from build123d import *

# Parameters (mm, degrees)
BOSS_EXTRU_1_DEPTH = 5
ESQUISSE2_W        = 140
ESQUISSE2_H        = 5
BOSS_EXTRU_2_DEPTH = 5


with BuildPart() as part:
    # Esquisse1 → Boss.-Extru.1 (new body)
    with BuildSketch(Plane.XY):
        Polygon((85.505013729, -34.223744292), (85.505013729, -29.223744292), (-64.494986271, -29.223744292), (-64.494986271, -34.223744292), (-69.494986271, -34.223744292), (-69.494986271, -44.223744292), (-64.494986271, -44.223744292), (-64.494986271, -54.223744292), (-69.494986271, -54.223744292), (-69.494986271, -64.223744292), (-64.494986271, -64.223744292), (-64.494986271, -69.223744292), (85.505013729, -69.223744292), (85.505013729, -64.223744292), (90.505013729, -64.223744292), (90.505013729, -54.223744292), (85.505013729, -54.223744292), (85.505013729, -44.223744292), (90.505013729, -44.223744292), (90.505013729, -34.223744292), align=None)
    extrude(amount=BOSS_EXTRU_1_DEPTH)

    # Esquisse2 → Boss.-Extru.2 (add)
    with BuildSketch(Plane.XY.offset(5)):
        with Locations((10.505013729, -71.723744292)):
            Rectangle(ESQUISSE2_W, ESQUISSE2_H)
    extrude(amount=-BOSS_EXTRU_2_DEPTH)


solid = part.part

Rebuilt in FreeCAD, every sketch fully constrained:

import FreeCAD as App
import Part
import Sketcher
Q = App.Units.Quantity


def add_polygon(sketch, points):
    """Adds a closed chain of lines whose ends are joined by coincident constraints."""
    first, n = sketch.GeometryCount, len(points)
    for a, b in zip(points, points[1:] + points[:1]):
        sketch.addGeometry(Part.LineSegment(App.Vector(*a, 0), App.Vector(*b, 0)), False)
    for i in range(n):
        sketch.addConstraint(Sketcher.Constraint("Coincident", first + i, 2, first + (i + 1) % n, 1))

doc = App.newDocument("Part")
params = doc.addObject("Spreadsheet::Sheet", "Params")
for row, (alias, value) in enumerate([
    ("sketch1_width", "150 mm"),
    ("sketch1_width2", "5 mm"),
    ("sketch1_height", "10 mm"),
    ("pad1_length", "5 mm"),
    ("sketch2_width", "140 mm"),
    ("sketch2_height", "5 mm"),
    ("pad2_length", "5 mm"),
], start=1):
    params.set(f"A{row}", alias)
    params.set(f"B{row}", "=" + value)
    params.setAlias(f"B{row}", alias)

body = doc.addObject("PartDesign::Body", "Body")

sketch1 = body.newObject("Sketcher::SketchObject", "Sketch")
sketch1.AttachmentSupport = (doc.getObject("XY_Plane"), [""])
sketch1.MapMode = "FlatFace"
add_polygon(sketch1, [(86, -34), (86, -29), (-64, -29), (-64, -34), (-69, -34), (-69, -44), (-64, -44), (-64, -54), (-69, -54), (-69, -64), (-64, -64), (-64, -69), (86, -69), (86, -64), (91, -64), (91, -54), (86, -54), (86, -44), (91, -44), (91, -34)])
sketch1.addConstraint(Sketcher.Constraint("Vertical", 0))
sketch1.addConstraint(Sketcher.Constraint("Horizontal", 1))
sketch1.addConstraint(Sketcher.Constraint("Vertical", 2))
sketch1.addConstraint(Sketcher.Constraint("Horizontal", 3))
sketch1.addConstraint(Sketcher.Constraint("Vertical", 4))
sketch1.addConstraint(Sketcher.Constraint("Horizontal", 5))
sketch1.addConstraint(Sketcher.Constraint("Vertical", 6))
sketch1.addConstraint(Sketcher.Constraint("Horizontal", 7))
sketch1.addConstraint(Sketcher.Constraint("Vertical", 8))
sketch1.addConstraint(Sketcher.Constraint("Horizontal", 9))
sketch1.addConstraint(Sketcher.Constraint("Vertical", 10))
sketch1.addConstraint(Sketcher.Constraint("Horizontal", 11))
sketch1.addConstraint(Sketcher.Constraint("Vertical", 12))
sketch1.addConstraint(Sketcher.Constraint("Horizontal", 13))
sketch1.addConstraint(Sketcher.Constraint("Vertical", 14))
sketch1.addConstraint(Sketcher.Constraint("Horizontal", 15))
sketch1.addConstraint(Sketcher.Constraint("Vertical", 16))
sketch1.addConstraint(Sketcher.Constraint("Horizontal", 17))
sketch1.addConstraint(Sketcher.Constraint("Vertical", 18))
sketch1.addConstraint(Sketcher.Constraint("Horizontal", 19))
sketch1.addConstraint(Sketcher.Constraint("Horizontal", 9, 2, 12, 2))
sketch1.addConstraint(Sketcher.Constraint("Horizontal", 7, 2, 14, 2))
sketch1.addConstraint(Sketcher.Constraint("Horizontal", 5, 2, 16, 2))
sketch1.addConstraint(Sketcher.Constraint("Horizontal", 3, 2, 18, 2))
sketch1.addConstraint(Sketcher.Constraint("Vertical", 2, 2, 5, 2))
sketch1.addConstraint(Sketcher.Constraint("Vertical", 4, 2, 7, 2))
sketch1.addConstraint(Sketcher.Constraint("Vertical", 6, 2, 9, 2))
sketch1.addConstraint(Sketcher.Constraint("Vertical", 0, 2, 11, 2))
sketch1.addConstraint(Sketcher.Constraint("Vertical", 12, 2, 15, 2))
sketch1.addConstraint(Sketcher.Constraint("Vertical", 14, 2, 17, 2))
sketch1.addConstraint(Sketcher.Constraint("Equal", 9, 13))
sketch1.addConstraint(Sketcher.Constraint("Equal", 19, 0))
sketch1.addConstraint(Sketcher.Constraint("Equal", 4, 6))
sketch1.addConstraint(Sketcher.Constraint("Equal", 6, 8))
sketch1.addConstraint(Sketcher.Constraint("Equal", 2, 10))
sketch1.addConstraint(Sketcher.Constraint("DistanceX", 1, 2, 1, 1, Q("150 mm")))
sketch1.addConstraint(Sketcher.Constraint("DistanceX", 3, 2, 3, 1, Q("5 mm")))
sketch1.addConstraint(Sketcher.Constraint("DistanceY", 4, 2, 4, 1, Q("10 mm")))
sketch1.addConstraint(Sketcher.Constraint("DistanceX", -1, 1, 0, 2, Q("85.505014 mm")))
sketch1.addConstraint(Sketcher.Constraint("DistanceY", 0, 2, -1, 1, Q("29.223744 mm")))
sketch1.setExpression("Constraints[55]", "Params.sketch1_width")
sketch1.setExpression("Constraints[56]", "Params.sketch1_width2")
sketch1.setExpression("Constraints[57]", "Params.sketch1_height")
pad1 = body.newObject("PartDesign::Pad", "Pad")
pad1.Profile = sketch1
pad1.setExpression("Length", "Params.pad1_length")

sketch2 = body.newObject("Sketcher::SketchObject", "Sketch001")
sketch2.AttachmentSupport = (doc.getObject("XY_Plane"), [""])
sketch2.MapMode = "FlatFace"
sketch2.AttachmentOffset = App.Placement(App.Vector(0, 0, 5), App.Rotation())
add_polygon(sketch2, [(-59, -69), (-59, -74), (81, -74), (81, -69)])
sketch2.addConstraint(Sketcher.Constraint("Vertical", 0))
sketch2.addConstraint(Sketcher.Constraint("Horizontal", 1))
sketch2.addConstraint(Sketcher.Constraint("Vertical", 2))
sketch2.addConstraint(Sketcher.Constraint("Horizontal", 3))
sketch2.addConstraint(Sketcher.Constraint("DistanceX", 1, 1, 1, 2, Q("140 mm")))
sketch2.addConstraint(Sketcher.Constraint("DistanceY", 0, 2, 0, 1, Q("5 mm")))
sketch2.addConstraint(Sketcher.Constraint("DistanceX", 0, 2, -1, 1, Q("59.494986 mm")))
sketch2.addConstraint(Sketcher.Constraint("DistanceY", 0, 2, -1, 1, Q("74.223744 mm")))
sketch2.setExpression("Constraints[8]", "Params.sketch2_width")
sketch2.setExpression("Constraints[9]", "Params.sketch2_height")
pad2 = body.newObject("PartDesign::Pad", "Pad001")
pad2.Profile = sketch2
pad2.setExpression("Length", "Params.pad2_length")
pad2.Reversed = True

doc.recompute()
